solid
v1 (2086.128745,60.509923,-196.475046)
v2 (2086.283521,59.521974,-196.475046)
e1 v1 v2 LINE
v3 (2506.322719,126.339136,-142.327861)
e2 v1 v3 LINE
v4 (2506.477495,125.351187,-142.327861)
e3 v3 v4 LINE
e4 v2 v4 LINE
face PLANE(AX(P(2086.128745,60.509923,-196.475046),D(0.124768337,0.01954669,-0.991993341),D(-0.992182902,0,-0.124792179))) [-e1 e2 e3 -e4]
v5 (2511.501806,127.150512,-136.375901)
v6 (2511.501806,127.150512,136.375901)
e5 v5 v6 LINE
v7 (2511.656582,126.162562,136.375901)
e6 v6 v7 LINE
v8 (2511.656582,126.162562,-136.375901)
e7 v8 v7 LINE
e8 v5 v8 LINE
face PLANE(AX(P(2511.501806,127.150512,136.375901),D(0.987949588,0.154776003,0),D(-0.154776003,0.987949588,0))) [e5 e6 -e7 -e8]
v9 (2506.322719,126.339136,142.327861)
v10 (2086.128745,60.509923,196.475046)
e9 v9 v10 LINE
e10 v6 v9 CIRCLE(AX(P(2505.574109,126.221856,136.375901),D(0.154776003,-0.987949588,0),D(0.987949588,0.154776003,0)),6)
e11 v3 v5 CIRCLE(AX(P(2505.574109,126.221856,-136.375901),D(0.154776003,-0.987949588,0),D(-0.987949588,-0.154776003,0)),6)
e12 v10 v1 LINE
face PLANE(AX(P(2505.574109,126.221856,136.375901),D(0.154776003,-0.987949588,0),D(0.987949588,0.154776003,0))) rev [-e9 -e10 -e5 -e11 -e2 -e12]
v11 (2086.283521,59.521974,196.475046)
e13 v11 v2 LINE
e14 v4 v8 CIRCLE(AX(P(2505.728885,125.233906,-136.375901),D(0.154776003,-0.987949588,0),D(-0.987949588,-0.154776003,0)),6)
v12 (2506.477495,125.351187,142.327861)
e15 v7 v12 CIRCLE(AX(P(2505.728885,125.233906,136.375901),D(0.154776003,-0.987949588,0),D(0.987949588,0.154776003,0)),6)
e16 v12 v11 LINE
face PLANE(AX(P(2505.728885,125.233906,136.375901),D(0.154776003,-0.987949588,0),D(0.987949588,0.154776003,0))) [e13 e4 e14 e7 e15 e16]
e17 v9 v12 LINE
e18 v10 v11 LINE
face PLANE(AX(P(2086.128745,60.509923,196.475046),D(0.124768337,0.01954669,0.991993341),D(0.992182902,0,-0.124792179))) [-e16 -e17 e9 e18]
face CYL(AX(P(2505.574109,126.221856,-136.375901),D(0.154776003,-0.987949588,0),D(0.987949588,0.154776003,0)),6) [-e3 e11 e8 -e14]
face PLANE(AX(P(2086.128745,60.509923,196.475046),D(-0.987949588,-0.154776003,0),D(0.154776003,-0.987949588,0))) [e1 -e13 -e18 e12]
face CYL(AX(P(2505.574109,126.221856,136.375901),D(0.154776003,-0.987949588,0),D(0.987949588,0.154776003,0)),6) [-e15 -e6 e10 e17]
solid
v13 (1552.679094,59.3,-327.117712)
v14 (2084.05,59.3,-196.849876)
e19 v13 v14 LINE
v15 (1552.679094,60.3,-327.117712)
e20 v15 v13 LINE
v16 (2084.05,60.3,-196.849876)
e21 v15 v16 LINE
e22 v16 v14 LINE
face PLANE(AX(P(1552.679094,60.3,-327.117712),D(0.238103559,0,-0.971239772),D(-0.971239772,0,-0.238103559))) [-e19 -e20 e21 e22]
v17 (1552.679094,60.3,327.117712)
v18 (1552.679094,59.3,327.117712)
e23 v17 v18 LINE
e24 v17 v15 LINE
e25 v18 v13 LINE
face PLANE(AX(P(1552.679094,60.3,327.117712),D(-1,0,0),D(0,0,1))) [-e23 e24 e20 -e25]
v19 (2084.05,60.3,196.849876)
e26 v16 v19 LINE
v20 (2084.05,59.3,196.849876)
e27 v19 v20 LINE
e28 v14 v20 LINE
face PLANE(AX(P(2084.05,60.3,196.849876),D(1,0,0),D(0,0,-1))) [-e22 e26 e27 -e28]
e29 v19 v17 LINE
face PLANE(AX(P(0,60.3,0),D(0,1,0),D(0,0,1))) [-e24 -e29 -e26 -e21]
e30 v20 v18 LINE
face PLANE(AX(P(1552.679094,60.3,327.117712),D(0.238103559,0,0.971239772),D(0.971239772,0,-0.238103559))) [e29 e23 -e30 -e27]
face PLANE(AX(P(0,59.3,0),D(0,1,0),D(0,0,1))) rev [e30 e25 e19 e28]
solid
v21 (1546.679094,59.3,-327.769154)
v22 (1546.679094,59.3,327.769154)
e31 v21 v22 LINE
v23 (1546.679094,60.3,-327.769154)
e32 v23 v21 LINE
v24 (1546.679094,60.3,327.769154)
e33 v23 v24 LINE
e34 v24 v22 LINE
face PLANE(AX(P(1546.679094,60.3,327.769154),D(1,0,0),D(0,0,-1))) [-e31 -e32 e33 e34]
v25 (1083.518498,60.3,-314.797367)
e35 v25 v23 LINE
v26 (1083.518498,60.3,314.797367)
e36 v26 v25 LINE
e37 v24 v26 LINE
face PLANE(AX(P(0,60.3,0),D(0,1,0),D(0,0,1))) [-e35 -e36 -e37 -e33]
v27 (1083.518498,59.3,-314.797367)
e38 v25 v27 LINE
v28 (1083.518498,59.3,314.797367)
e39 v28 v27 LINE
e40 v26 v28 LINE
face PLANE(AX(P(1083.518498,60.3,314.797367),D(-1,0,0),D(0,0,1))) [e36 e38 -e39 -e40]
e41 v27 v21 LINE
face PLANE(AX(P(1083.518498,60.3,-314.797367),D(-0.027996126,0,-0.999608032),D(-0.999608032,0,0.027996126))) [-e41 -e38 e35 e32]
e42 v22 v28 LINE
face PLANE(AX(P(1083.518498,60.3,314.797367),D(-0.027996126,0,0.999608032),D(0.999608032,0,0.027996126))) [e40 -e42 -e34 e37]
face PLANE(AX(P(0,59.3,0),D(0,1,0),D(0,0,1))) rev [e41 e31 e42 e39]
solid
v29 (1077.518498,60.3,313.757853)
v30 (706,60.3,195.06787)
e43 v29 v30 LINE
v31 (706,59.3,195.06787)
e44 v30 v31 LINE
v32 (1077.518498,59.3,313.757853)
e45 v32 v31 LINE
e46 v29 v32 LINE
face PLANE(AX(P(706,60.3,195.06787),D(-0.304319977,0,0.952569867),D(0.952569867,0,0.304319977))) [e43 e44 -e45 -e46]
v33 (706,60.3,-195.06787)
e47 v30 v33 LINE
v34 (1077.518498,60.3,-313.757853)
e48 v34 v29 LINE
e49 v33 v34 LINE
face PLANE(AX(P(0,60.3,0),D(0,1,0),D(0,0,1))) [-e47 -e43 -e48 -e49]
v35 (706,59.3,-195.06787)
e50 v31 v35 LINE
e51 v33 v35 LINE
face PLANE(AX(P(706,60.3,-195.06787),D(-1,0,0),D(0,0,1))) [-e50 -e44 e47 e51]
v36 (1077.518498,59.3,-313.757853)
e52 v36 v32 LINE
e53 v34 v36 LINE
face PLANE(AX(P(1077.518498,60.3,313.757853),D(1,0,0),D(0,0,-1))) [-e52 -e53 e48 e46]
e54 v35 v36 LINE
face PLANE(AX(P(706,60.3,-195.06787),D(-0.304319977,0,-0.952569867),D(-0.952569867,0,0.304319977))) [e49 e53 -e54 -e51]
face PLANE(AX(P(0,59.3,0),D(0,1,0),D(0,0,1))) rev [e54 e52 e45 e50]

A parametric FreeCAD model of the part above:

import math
import FreeCAD as App
import Part
import Sketcher

V = App.Vector


def add_polygon(sketch, points):
    """Adds a closed chain of lines whose ends are joined by coincident constraints."""
    first, n = sketch.GeometryCount, len(points)
    for a, b in zip(points, points[1:] + points[:1]):
        sketch.addGeometry(Part.LineSegment(App.Vector(*a, 0), App.Vector(*b, 0)), False)
    for i in range(n):
        sketch.addConstraint(Sketcher.Constraint("Coincident", first + i, 2, first + (i + 1) % n, 1))

doc = App.newDocument("Part")
body = doc.addObject("PartDesign::Body", "Body")

sketch1 = body.newObject("Sketcher::SketchObject", "Sketch")
sketch1.AttachmentSupport = (doc.getObject("XZ_Plane"), [""])
sketch1.MapMode = "FlatFace"
sketch1.AttachmentOffset = App.Placement(V(0, 0, -59.3), App.Rotation())
add_polygon(sketch1, [(2084, -197), (2084, 197), (1553, 327), (1553, -327)])
sketch1.addConstraint([
    Sketcher.Constraint("Vertical", 0),
    Sketcher.Constraint("Vertical", 2),
    Sketcher.Constraint("Equal", 1, 3),
    Sketcher.Constraint("DistanceX", -1, 1, 0, 2, 2084.05),
    Sketcher.Constraint("DistanceY", 0, 1, 0, 2, 393.699752),
    Sketcher.Constraint("DistanceY", 2, 2, 2, 1, 654.235425),
    Sketcher.Constraint("Distance", 1, 547.105794),
    Sketcher.Constraint("DistanceY", -1, 1, 0, 2, 196.849876),
])
pad1 = body.newObject("PartDesign::Pad", "Pad")
pad1.Profile = sketch1
pad1.Length = 1
pad1.Reversed = True
body2 = doc.addObject("PartDesign::Body", "Body001")

sketch2 = body2.newObject("Sketcher::SketchObject", "Sketch001")
sketch2.AttachmentSupport = (doc.getObject("XZ_Plane001"), [""])
sketch2.MapMode = "FlatFace"
sketch2.AttachmentOffset = App.Placement(V(0, 0, -59.3), App.Rotation())
add_polygon(sketch2, [(1084, 315), (1084, -315), (1547, -328), (1547, 328)])
sketch2.addConstraint([
    Sketcher.Constraint("Vertical", 0),
    Sketcher.Constraint("Vertical", 2),
    Sketcher.Constraint("Equal", 1, 3),
    Sketcher.Constraint("Distance", 1, 463.342211),
    Sketcher.Constraint("DistanceY", 0, 2, 0, 1, 629.594733),
    Sketcher.Constraint("DistanceY", 2, 1, 2, 2, 655.538307),
    Sketcher.Constraint("DistanceX", -1, 1, 0, 2, 1083.518498),
    Sketcher.Constraint("DistanceY", 0, 2, -1, 1, 314.797367),
])
pad2 = body2.newObject("PartDesign::Pad", "Pad001")
pad2.Profile = sketch2
pad2.Length = 1
pad2.Reversed = True
body3 = doc.addObject("PartDesign::Body", "Body002")

sketch3 = body3.newObject("Sketcher::SketchObject", "Sketch002")
sketch3.AttachmentSupport = (doc.getObject("XZ_Plane002"), [""])
sketch3.MapMode = "FlatFace"
sketch3.AttachmentOffset = App.Placement(V(0, 0, -59.3), App.Rotation())
add_polygon(sketch3, [(1078, -314), (1078, 314), (706, 195), (706, -195)])
sketch3.addConstraint([
    Sketcher.Constraint("Vertical", 0),
    Sketcher.Constraint("Vertical", 2),
    Sketcher.Constraint("Equal", 1, 3),
    Sketcher.Constraint("DistanceX", -1, 1, 1, 2, 706.0),
    Sketcher.Constraint("DistanceY", 2, 2, 2, 1, 390.135741),
    Sketcher.Constraint("Distance", 1, 390.017059),
    Sketcher.Constraint("DistanceY", 0, 1, 0, 2, 627.515706),
    Sketcher.Constraint("DistanceY", -1, 1, 1, 2, 195.06787),
])
pad3 = body3.newObject("PartDesign::Pad", "Pad002")
pad3.Profile = sketch3
pad3.Length = 1
pad3.Reversed = True
body4 = doc.addObject("PartDesign::Body", "Body003")

sketch4 = body4.newObject("Sketcher::SketchObject", "Sketch003")
sketch4.Placement = App.Placement(V(40.721863, -259.931429, 0), App.Rotation(V(0.987949588, 0.154776003, 0), V(0, 0, 1), V(0.154776003, -0.987949588, 0), "ZXY"))
sketch4.addGeometry([
    Part.LineSegment(V(2070, -196, 0), V(2496, -142, 0)),
    Part.ArcOfCircle(Part.Circle(V(2495, -136, 0), V(0, 0, 1), 6), math.radians(-83), math.radians(0)),
    Part.LineSegment(V(2501, -136, 0), V(2501, 136, 0)),
    Part.ArcOfCircle(Part.Circle(V(2495, 136, 0), V(0, 0, 1), 6), math.radians(0), math.radians(83)),
    Part.LineSegment(V(2496, 142, 0), V(2070, 196, 0)),
    Part.LineSegment(V(2070, 196, 0), V(2070, -196, 0)),
], False)
sketch4.addConstraint([
    Sketcher.Constraint("Tangent", 0, 2, 1, 1),
    Sketcher.Constraint("Tangent", 1, 2, 2, 1),
    Sketcher.Constraint("Tangent", 2, 2, 3, 1),
    Sketcher.Constraint("Tangent", 3, 2, 4, 1),
    Sketcher.Constraint("Coincident", 4, 2, 5, 1),
    Sketcher.Constraint("Coincident", 5, 2, 0, 1),
    Sketcher.Constraint("Vertical", 2),
    Sketcher.Constraint("Vertical", 5),
    Sketcher.Constraint("Equal", 1, 3),
    Sketcher.Constraint("Symmetric", 0, 2, 3, 2, -1),
    Sketcher.Constraint("Radius", 1, 6.0),
    Sketcher.Constraint("DistanceY", 5, 2, 5, 1, 392.950091),
    Sketcher.Constraint("DistanceY", 1, 3, -1, 1, 136.375901),
    Sketcher.Constraint("Distance", 0, 428.752118),
    Sketcher.Constraint("DistanceX", -1, 1, 1, 3, 2494.917022),
])
pad4 = body4.newObject("PartDesign::Pad", "Pad003")
pad4.Profile = sketch4
pad4.Length = 1

doc.recompute()
